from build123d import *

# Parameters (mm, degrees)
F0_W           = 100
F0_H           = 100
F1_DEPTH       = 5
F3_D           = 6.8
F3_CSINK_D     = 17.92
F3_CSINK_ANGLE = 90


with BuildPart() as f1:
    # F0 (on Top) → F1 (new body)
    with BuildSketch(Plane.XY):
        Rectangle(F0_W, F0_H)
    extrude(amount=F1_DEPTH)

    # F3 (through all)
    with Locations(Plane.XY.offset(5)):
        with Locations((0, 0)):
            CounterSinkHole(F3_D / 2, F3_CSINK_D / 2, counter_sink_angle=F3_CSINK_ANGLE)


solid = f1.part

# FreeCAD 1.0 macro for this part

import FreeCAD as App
import Part
import Sketcher
from FreeCAD import Vector

doc = App.newDocument("Part")
body = doc.addObject("PartDesign::Body", "Body")

# Sketch on XY plane
sketch1 = body.newObject("Sketcher::SketchObject", "Sketch")
sketch1.AttachmentSupport = (doc.getObject("XY_Plane"), [""])
sketch1.MapMode = "FlatFace"
sketch1.addGeometry(Part.LineSegment(Vector(-50, 50, 0), Vector(-50, -50, 0)), False)
sketch1.addGeometry(Part.LineSegment(Vector(-50, -50, 0), Vector(50, -50, 0)), False)
sketch1.addGeometry(Part.LineSegment(Vector(50, -50, 0), Vector(50, 50, 0)), False)
sketch1.addGeometry(Part.LineSegment(Vector(50, 50, 0), Vector(-50, 50, 0)), False)
sketch1.addConstraint(Sketcher.Constraint("Coincident", 0, 2, 1, 1))
sketch1.addConstraint(Sketcher.Constraint("Coincident", 1, 2, 2, 1))
sketch1.addConstraint(Sketcher.Constraint("Coincident", 2, 2, 3, 1))
sketch1.addConstraint(Sketcher.Constraint("Coincident", 3, 2, 0, 1))
sketch1.addConstraint(Sketcher.Constraint("Vertical", 0))
sketch1.addConstraint(Sketcher.Constraint("Horizontal", 1))
sketch1.addConstraint(Sketcher.Constraint("Vertical", 2))
sketch1.addConstraint(Sketcher.Constraint("Horizontal", 3))
sketch1.addConstraint(Sketcher.Constraint("Symmetric", 0, 2, 2, 2, -1, 1))
sketch1.addConstraint(Sketcher.Constraint("Equal", 3, 0))
sketch1.addConstraint(Sketcher.Constraint("DistanceX", 1, 1, 1, 2, 100.0))
pad1 = body.newObject("PartDesign::Pad", "Pad")
pad1.Profile = sketch1
pad1.Length = 5

# Sketch on XY plane
sketch2 = body.newObject("Sketcher::SketchObject", "Sketch001")
sketch2.AttachmentSupport = (doc.getObject("XY_Plane"), [""])
sketch2.MapMode = "FlatFace"
sketch2.AttachmentOffset = App.Placement(Vector(0, 0, 5), App.Rotation())
sketch2.addGeometry(Part.Circle(Vector(0, 0, 0), Vector(0, 0, 1), 3.4), False)
sketch2.addConstraint(Sketcher.Constraint("Coincident", 0, 3, -1, 1))
sketch2.addConstraint(Sketcher.Constraint("Diameter", 0, 6.8))
doc.recompute()
hole = body.newObject("PartDesign::Hole", "Hole")
hole.Profile = sketch2
hole.ThreadType = "None"
hole.Diameter = 6.8
hole.DepthType = "ThroughAll"
hole.HoleCutType = "Countersink"
hole.HoleCutDiameter = 17.92
hole.HoleCutCountersinkAngle = 90

doc.recompute()
